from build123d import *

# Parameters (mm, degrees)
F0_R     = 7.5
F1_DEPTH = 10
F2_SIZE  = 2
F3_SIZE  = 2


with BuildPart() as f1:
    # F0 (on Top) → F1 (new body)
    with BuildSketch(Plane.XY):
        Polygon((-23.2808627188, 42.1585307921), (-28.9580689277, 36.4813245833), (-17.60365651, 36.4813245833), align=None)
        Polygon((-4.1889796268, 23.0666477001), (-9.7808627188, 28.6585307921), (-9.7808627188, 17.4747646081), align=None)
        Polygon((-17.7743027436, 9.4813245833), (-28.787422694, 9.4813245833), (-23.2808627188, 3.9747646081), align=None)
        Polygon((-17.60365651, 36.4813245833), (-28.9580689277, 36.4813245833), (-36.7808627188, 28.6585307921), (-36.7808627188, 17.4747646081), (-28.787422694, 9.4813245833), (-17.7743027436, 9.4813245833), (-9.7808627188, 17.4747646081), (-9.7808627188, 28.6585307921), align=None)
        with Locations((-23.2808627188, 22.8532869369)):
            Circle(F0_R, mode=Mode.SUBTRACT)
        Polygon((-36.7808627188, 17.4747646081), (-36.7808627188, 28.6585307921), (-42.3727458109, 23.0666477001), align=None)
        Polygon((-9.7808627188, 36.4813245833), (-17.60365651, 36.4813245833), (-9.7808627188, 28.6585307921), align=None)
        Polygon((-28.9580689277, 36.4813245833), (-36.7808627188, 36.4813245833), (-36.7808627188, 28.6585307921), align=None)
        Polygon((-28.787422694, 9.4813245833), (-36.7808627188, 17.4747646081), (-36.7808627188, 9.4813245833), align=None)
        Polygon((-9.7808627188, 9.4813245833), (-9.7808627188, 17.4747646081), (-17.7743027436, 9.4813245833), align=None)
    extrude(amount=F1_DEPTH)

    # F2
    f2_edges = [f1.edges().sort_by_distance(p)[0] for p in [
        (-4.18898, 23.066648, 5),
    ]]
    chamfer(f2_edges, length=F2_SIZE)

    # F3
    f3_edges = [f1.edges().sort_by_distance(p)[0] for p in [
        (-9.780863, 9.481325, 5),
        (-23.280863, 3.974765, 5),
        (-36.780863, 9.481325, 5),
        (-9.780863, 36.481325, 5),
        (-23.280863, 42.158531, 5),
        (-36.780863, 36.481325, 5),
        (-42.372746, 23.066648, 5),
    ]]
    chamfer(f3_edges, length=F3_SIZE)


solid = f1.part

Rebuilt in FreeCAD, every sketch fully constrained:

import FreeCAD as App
import Part
import Sketcher
from FreeCAD import Vector


def edges_at(feature, points):
    """Names of the edges that pass closest to the given points."""
    edges = feature.Shape.Edges
    near = lambda p: min(range(len(edges)), key=lambda i: edges[i].distToShape(Part.Vertex(*p))[0])
    return sorted({f"Edge{near(p) + 1}" for p in points})


def add_polygon(sketch, points):
    """Adds a closed chain of lines whose ends are joined by coincident constraints."""
    first, n = sketch.GeometryCount, len(points)
    for a, b in zip(points, points[1:] + points[:1]):
        sketch.addGeometry(Part.LineSegment(App.Vector(*a, 0), App.Vector(*b, 0)), False)
    for i in range(n):
        sketch.addConstraint(Sketcher.Constraint("Coincident", first + i, 2, first + (i + 1) % n, 1))

doc = App.newDocument("Part")
params = doc.addObject("Spreadsheet::Sheet", "Params")
for row, (alias, value) in enumerate([
    ("sketch1_diameter", "15 mm"),
    ("pad1_length", "10 mm"),
    ("chamfer_size", "2 mm"),
    ("chamfer2_size", "2 mm"),
], start=1):
    params.set(f"A{row}", alias)
    params.set(f"B{row}", "=" + value)
    params.setAlias(f"B{row}", alias)

body = doc.addObject("PartDesign::Body", "Body")

sketch1 = body.newObject("Sketcher::SketchObject", "Sketch")
sketch1.AttachmentSupport = (doc.getObject("XY_Plane"), [""])
sketch1.MapMode = "FlatFace"
add_polygon(sketch1, [(-23.280863, 42.158531), (-28.958069, 36.481325), (-36.780863, 36.481325), (-36.780863, 28.658531), (-42.372746, 23.066648), (-36.780863, 17.474765), (-36.780863, 9.481325), (-28.787423, 9.481325), (-23.280863, 3.974765), (-17.774303, 9.481325), (-9.780863, 9.481325), (-9.780863, 17.474765), (-4.18898, 23.066648), (-9.780863, 28.658531), (-9.780863, 36.481325), (-17.603657, 36.481325)])
sketch1.addGeometry(Part.Circle(Vector(-23.280863, 22.853287, 0), Vector(0, 0, 1), 7.5), False)
sketch1.addConstraint([
    Sketcher.Constraint("Horizontal", 1),
    Sketcher.Constraint("Vertical", 2),
    Sketcher.Constraint("Vertical", 5),
    Sketcher.Constraint("Horizontal", 6),
    Sketcher.Constraint("Horizontal", 9),
    Sketcher.Constraint("Vertical", 10),
    Sketcher.Constraint("Vertical", 13),
    Sketcher.Constraint("Horizontal", 14),
    Sketcher.Constraint("Parallel", 0, 3),
    Sketcher.Constraint("Perpendicular", 3, 4),
    Sketcher.Constraint("Parallel", 4, 7),
    Sketcher.Constraint("Perpendicular", 7, 8),
    Sketcher.Constraint("Parallel", 8, 11),
    Sketcher.Constraint("Perpendicular", 11, 12),
    Sketcher.Constraint("Parallel", 12, 15),
    Sketcher.Constraint("Horizontal", 6, 2, 8, 2),
    Sketcher.Constraint("Horizontal", 4, 2, 10, 2),
    Sketcher.Constraint("Horizontal", 3, 2, 11, 2),
    Sketcher.Constraint("Horizontal", 2, 2, 12, 2),
    Sketcher.Constraint("Horizontal", 1, 2, 13, 2),
    Sketcher.Constraint("Vertical", 2, 2, 4, 2),
    Sketcher.Constraint("Vertical", 16, 3, 7, 2),
    Sketcher.Constraint("Vertical", 10, 2, 12, 2),
    Sketcher.Constraint("Vertical", 7, 2, 15, 2),
    Sketcher.Constraint("Equal", 6, 9),
    Sketcher.Constraint("Equal", 14, 2),
    Sketcher.Constraint("Equal", 9, 5),
    Sketcher.Constraint("Diameter", 16, 15.0),
    Sketcher.Constraint("DistanceY", 5, 2, 1, 2, 27.0),
    Sketcher.Constraint("DistanceX", 5, 2, 9, 2, 27.0),
    Sketcher.Constraint("DistanceX", 6, 1, 6, 2, 7.99344),
    Sketcher.Constraint("DistanceX", 1, 2, 1, 1, 7.822794),
    Sketcher.Constraint("DistanceX", 0, 2, -1, 1, 28.958069),
    Sketcher.Constraint("DistanceY", -1, 1, 2, 2, 28.658531),
    Sketcher.Constraint("DistanceY", 16, 3, 3, 2, 0.213361),
])
sketch1.setExpression("Constraints[43]", "Params.sketch1_diameter")
pad1 = body.newObject("PartDesign::Pad", "Pad")
pad1.Profile = sketch1
pad1.setExpression("Length", "Params.pad1_length")
doc.recompute()

chamfer = body.newObject("PartDesign::Chamfer", "Chamfer")
chamfer.Base = (pad1, edges_at(pad1, [(-4.189, 23.067, 5)]))
chamfer.setExpression("Size", "Params.chamfer_size")
doc.recompute()

chamfer2 = body.newObject("PartDesign::Chamfer", "Chamfer001")
chamfer2.Base = (chamfer, edges_at(chamfer, [
    (-9.781, 9.481, 5),
    (-23.281, 3.975, 5),
    (-36.781, 9.481, 5),
    (-9.781, 36.481, 5),
    (-23.281, 42.159, 5),
    (-36.781, 36.481, 5),
    (-42.373, 23.067, 5),
]))
chamfer2.setExpression("Size", "Params.chamfer2_size")

doc.recompute()
